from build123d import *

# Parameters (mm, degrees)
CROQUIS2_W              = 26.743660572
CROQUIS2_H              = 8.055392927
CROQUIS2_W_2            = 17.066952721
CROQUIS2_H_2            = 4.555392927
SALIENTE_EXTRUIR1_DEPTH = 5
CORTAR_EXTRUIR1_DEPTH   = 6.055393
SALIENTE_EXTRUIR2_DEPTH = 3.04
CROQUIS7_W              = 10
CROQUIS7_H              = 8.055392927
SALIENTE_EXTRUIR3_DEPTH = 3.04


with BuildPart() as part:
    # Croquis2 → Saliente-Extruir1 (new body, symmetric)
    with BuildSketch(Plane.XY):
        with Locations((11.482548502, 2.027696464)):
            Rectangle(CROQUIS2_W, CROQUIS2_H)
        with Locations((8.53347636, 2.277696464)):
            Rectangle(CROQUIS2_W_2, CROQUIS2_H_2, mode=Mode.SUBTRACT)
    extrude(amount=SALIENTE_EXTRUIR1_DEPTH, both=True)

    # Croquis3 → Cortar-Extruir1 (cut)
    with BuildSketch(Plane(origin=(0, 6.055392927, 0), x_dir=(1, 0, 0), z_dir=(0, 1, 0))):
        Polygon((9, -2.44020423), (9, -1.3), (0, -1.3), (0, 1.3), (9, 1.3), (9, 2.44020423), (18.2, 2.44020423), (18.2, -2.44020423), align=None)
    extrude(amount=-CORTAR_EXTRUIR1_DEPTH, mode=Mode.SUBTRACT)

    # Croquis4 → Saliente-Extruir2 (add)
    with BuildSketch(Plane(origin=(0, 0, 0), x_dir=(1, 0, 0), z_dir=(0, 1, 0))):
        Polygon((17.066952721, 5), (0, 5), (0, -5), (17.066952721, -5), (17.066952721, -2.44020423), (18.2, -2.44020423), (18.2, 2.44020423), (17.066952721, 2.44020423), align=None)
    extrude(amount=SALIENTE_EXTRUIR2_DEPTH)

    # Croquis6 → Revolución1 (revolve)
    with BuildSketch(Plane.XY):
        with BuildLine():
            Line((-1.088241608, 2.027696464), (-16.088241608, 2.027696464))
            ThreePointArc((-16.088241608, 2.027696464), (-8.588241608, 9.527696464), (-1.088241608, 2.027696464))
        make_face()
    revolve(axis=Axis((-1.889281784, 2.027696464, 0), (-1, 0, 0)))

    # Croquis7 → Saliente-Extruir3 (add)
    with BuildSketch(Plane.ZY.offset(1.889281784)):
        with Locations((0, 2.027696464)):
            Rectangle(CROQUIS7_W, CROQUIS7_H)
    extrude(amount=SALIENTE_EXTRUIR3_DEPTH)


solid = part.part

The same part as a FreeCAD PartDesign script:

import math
import FreeCAD as App
import Part
import Sketcher

doc = App.newDocument("Part")
body = doc.addObject("PartDesign::Body", "Body")

# Sketch on XY plane
sketch1 = doc.addObject("Sketcher::SketchObject", "Sketch")
body.addObject(sketch1)
sketch1.AttachmentSupport = (doc.XY_Plane, [""])
sketch1.MapMode = "FlatFace"
sketch1.addGeometry(Part.LineSegment(App.Vector(-1.9, 6.1, 0), App.Vector(-1.9, -2, 0)), False)
sketch1.addGeometry(Part.LineSegment(App.Vector(-1.9, -2, 0), App.Vector(24.9, -2, 0)), False)
sketch1.addGeometry(Part.LineSegment(App.Vector(24.9, -2, 0), App.Vector(24.9, 6.1, 0)), False)
sketch1.addGeometry(Part.LineSegment(App.Vector(24.9, 6.1, 0), App.Vector(-1.9, 6.1, 0)), False)
sketch1.addGeometry(Part.LineSegment(App.Vector(17.1, 0, 0), App.Vector(0, 0, 0)), False)
sketch1.addGeometry(Part.LineSegment(App.Vector(0, 0, 0), App.Vector(0, 4.6, 0)), False)
sketch1.addGeometry(Part.LineSegment(App.Vector(0, 4.6, 0), App.Vector(17.1, 4.6, 0)), False)
sketch1.addGeometry(Part.LineSegment(App.Vector(17.1, 4.6, 0), App.Vector(17.1, 0, 0)), False)
sketch1.addConstraint(Sketcher.Constraint("Coincident", 0, 2, 1, 1))
sketch1.addConstraint(Sketcher.Constraint("Coincident", 1, 2, 2, 1))
sketch1.addConstraint(Sketcher.Constraint("Coincident", 2, 2, 3, 1))
sketch1.addConstraint(Sketcher.Constraint("Coincident", 3, 2, 0, 1))
sketch1.addConstraint(Sketcher.Constraint("Coincident", 4, 2, 5, 1))
sketch1.addConstraint(Sketcher.Constraint("Coincident", 5, 2, 6, 1))
sketch1.addConstraint(Sketcher.Constraint("Coincident", 6, 2, 7, 1))
sketch1.addConstraint(Sketcher.Constraint("Coincident", 7, 2, 4, 1))
sketch1.addConstraint(Sketcher.Constraint("Vertical", 0))
sketch1.addConstraint(Sketcher.Constraint("Horizontal", 1))
sketch1.addConstraint(Sketcher.Constraint("Vertical", 2))
sketch1.addConstraint(Sketcher.Constraint("Horizontal", 3))
sketch1.addConstraint(Sketcher.Constraint("Horizontal", 4))
sketch1.addConstraint(Sketcher.Constraint("Vertical", 5))
sketch1.addConstraint(Sketcher.Constraint("Horizontal", 6))
sketch1.addConstraint(Sketcher.Constraint("Vertical", 7))
sketch1.addConstraint(Sketcher.Constraint("Coincident", 4, 2, -1, 1))
sketch1.addConstraint(Sketcher.Constraint("DistanceY", 0, 2, -1, 1, 2.0))
sketch1.addConstraint(Sketcher.Constraint("DistanceY", 5, 2, 3, 2, 1.5))
sketch1.addConstraint(Sketcher.Constraint("DistanceX", 1, 1, 1, 2, 26.743661))
sketch1.addConstraint(Sketcher.Constraint("DistanceX", 4, 2, 4, 1, 17.066953))
sketch1.addConstraint(Sketcher.Constraint("DistanceY", 0, 2, 0, 1, 8.055393))
sketch1.addConstraint(Sketcher.Constraint("DistanceX", 0, 2, -1, 1, 1.889282))
pad1 = doc.addObject("PartDesign::Pad", "Pad")
body.addObject(pad1)
pad1.Profile = sketch1
pad1.Length = 10
pad1.Midplane = True

# Sketch on XZ plane
sketch2 = doc.addObject("Sketcher::SketchObject", "Sketch001")
body.addObject(sketch2)
sketch2.AttachmentSupport = (doc.XZ_Plane, [""])
sketch2.MapMode = "FlatFace"
sketch2.AttachmentOffset = App.Placement(App.Vector(0, 0, -6.055393), App.Rotation())
sketch2.addGeometry(Part.LineSegment(App.Vector(9, 1.3, 0), App.Vector(9, 2.4, 0)), False)
sketch2.addGeometry(Part.LineSegment(App.Vector(9, 2.4, 0), App.Vector(18.2, 2.4, 0)), False)
sketch2.addGeometry(Part.LineSegment(App.Vector(18.2, 2.4, 0), App.Vector(18.2, -2.4, 0)), False)
sketch2.addGeometry(Part.LineSegment(App.Vector(18.2, -2.4, 0), App.Vector(9, -2.4, 0)), False)
sketch2.addGeometry(Part.LineSegment(App.Vector(9, -2.4, 0), App.Vector(9, -1.3, 0)), False)
sketch2.addGeometry(Part.LineSegment(App.Vector(9, -1.3, 0), App.Vector(0, -1.3, 0)), False)
sketch2.addGeometry(Part.LineSegment(App.Vector(0, -1.3, 0), App.Vector(0, 1.3, 0)), False)
sketch2.addGeometry(Part.LineSegment(App.Vector(0, 1.3, 0), App.Vector(9, 1.3, 0)), False)
sketch2.addConstraint(Sketcher.Constraint("Coincident", 0, 2, 1, 1))
sketch2.addConstraint(Sketcher.Constraint("Coincident", 1, 2, 2, 1))
sketch2.addConstraint(Sketcher.Constraint("Coincident", 2, 2, 3, 1))
sketch2.addConstraint(Sketcher.Constraint("Coincident", 3, 2, 4, 1))
sketch2.addConstraint(Sketcher.Constraint("Coincident", 4, 2, 5, 1))
sketch2.addConstraint(Sketcher.Constraint("Coincident", 5, 2, 6, 1))
sketch2.addConstraint(Sketcher.Constraint("Coincident", 6, 2, 7, 1))
sketch2.addConstraint(Sketcher.Constraint("Coincident", 7, 2, 0, 1))
sketch2.addConstraint(Sketcher.Constraint("Vertical", 0))
sketch2.addConstraint(Sketcher.Constraint("Horizontal", 1))
sketch2.addConstraint(Sketcher.Constraint("Vertical", 2))
sketch2.addConstraint(Sketcher.Constraint("Horizontal", 3))
sketch2.addConstraint(Sketcher.Constraint("Vertical", 4))
sketch2.addConstraint(Sketcher.Constraint("Horizontal", 5))
sketch2.addConstraint(Sketcher.Constraint("Vertical", 6))
sketch2.addConstraint(Sketcher.Constraint("Horizontal", 7))
sketch2.addConstraint(Sketcher.Constraint("Symmetric", 5, 2, 6, 2, -1, 1))
sketch2.addConstraint(Sketcher.Constraint("Symmetric", 0, 2, 3, 2, -1))
sketch2.addConstraint(Sketcher.Constraint("DistanceX", 5, 2, 5, 1, 9.0))
sketch2.addConstraint(Sketcher.Constraint("DistanceX", 1, 1, 1, 2, 9.2))
sketch2.addConstraint(Sketcher.Constraint("DistanceY", 6, 1, 6, 2, 2.6))
sketch2.addConstraint(Sketcher.Constraint("DistanceY", 2, 2, 2, 1, 4.880408))
pocket1 = doc.addObject("PartDesign::Pocket", "Pocket")
body.addObject(pocket1)
pocket1.Profile = sketch2
pocket1.Length = 6.055393
pocket1.Reversed = True

# Sketch on XZ plane
sketch3 = doc.addObject("Sketcher::SketchObject", "Sketch002")
body.addObject(sketch3)
sketch3.AttachmentSupport = (doc.XZ_Plane, [""])
sketch3.MapMode = "FlatFace"
sketch3.addGeometry(Part.LineSegment(App.Vector(17.1, -5, 0), App.Vector(0, -5, 0)), False)
sketch3.addGeometry(Part.LineSegment(App.Vector(0, -5, 0), App.Vector(0, 5, 0)), False)
sketch3.addGeometry(Part.LineSegment(App.Vector(0, 5, 0), App.Vector(17.1, 5, 0)), False)
sketch3.addGeometry(Part.LineSegment(App.Vector(17.1, 5, 0), App.Vector(17.1, 2.4, 0)), False)
sketch3.addGeometry(Part.LineSegment(App.Vector(17.1, 2.4, 0), App.Vector(18.2, 2.4, 0)), False)
sketch3.addGeometry(Part.LineSegment(App.Vector(18.2, 2.4, 0), App.Vector(18.2, -2.4, 0)), False)
sketch3.addGeometry(Part.LineSegment(App.Vector(18.2, -2.4, 0), App.Vector(17.1, -2.4, 0)), False)
sketch3.addGeometry(Part.LineSegment(App.Vector(17.1, -2.4, 0), App.Vector(17.1, -5, 0)), False)
sketch3.addConstraint(Sketcher.Constraint("Coincident", 0, 2, 1, 1))
sketch3.addConstraint(Sketcher.Constraint("Coincident", 1, 2, 2, 1))
sketch3.addConstraint(Sketcher.Constraint("Coincident", 2, 2, 3, 1))
sketch3.addConstraint(Sketcher.Constraint("Coincident", 3, 2, 4, 1))
sketch3.addConstraint(Sketcher.Constraint("Coincident", 4, 2, 5, 1))
sketch3.addConstraint(Sketcher.Constraint("Coincident", 5, 2, 6, 1))
sketch3.addConstraint(Sketcher.Constraint("Coincident", 6, 2, 7, 1))
sketch3.addConstraint(Sketcher.Constraint("Coincident", 7, 2, 0, 1))
sketch3.addConstraint(Sketcher.Constraint("Horizontal", 0))
sketch3.addConstraint(Sketcher.Constraint("Vertical", 1))
sketch3.addConstraint(Sketcher.Constraint("Horizontal", 2))
sketch3.addConstraint(Sketcher.Constraint("Vertical", 3))
sketch3.addConstraint(Sketcher.Constraint("Horizontal", 4))
sketch3.addConstraint(Sketcher.Constraint("Vertical", 5))
sketch3.addConstraint(Sketcher.Constraint("Horizontal", 6))
sketch3.addConstraint(Sketcher.Constraint("Vertical", 7))
sketch3.addConstraint(Sketcher.Constraint("Symmetric", 0, 2, 1, 2, -1, 1))
sketch3.addConstraint(Sketcher.Constraint("Symmetric", 3, 2, 6, 2, -1))
sketch3.addConstraint(Sketcher.Constraint("DistanceY", 1, 1, 1, 2, 10.0))
sketch3.addConstraint(Sketcher.Constraint("DistanceX", -1, 1, 4, 2, 18.2))
sketch3.addConstraint(Sketcher.Constraint("DistanceY", 5, 2, 5, 1, 4.880408))
sketch3.addConstraint(Sketcher.Constraint("DistanceX", 0, 2, 0, 1, 17.066953))
pad2 = doc.addObject("PartDesign::Pad", "Pad001")
body.addObject(pad2)
pad2.Profile = sketch3
pad2.Length = 3.04
pad2.Reversed = True

# Sketch on XY plane
sketch4 = doc.addObject("Sketcher::SketchObject", "Sketch003")
body.addObject(sketch4)
sketch4.AttachmentSupport = (doc.XY_Plane, [""])
sketch4.MapMode = "FlatFace"
sketch4.addGeometry(Part.LineSegment(App.Vector(-16, 2, 0), App.Vector(-1, 2, 0)), False)
sketch4.addGeometry(Part.ArcOfCircle(Part.Circle(App.Vector(-9, 2, 0), App.Vector(0, 0, 1), 8), math.radians(0), math.radians(180)), False)
sketch4.addGeometry(Part.LineSegment(App.Vector(-1, 2, 0), App.Vector(-16, 2, 0)), True)  # axis
sketch4.addConstraint(Sketcher.Constraint("Coincident", 0, 1, 1, 2))
sketch4.addConstraint(Sketcher.Constraint("Coincident", 1, 1, 0, 2))
sketch4.addConstraint(Sketcher.Constraint("Horizontal", 0))
sketch4.addConstraint(Sketcher.Constraint("Horizontal", 2))
sketch4.addConstraint(Sketcher.Constraint("Coincident", 2, 1, 1, 1))
sketch4.addConstraint(Sketcher.Constraint("Horizontal", 1, 3, 0, 1))
sketch4.addConstraint(Sketcher.Constraint("Equal", 0, 2))
sketch4.addConstraint(Sketcher.Constraint("Radius", 1, 7.5))
sketch4.addConstraint(Sketcher.Constraint("DistanceX", 1, 3, -1, 1, 8.588242))
sketch4.addConstraint(Sketcher.Constraint("DistanceY", -1, 1, 1, 3, 2.027696))
revolution = doc.addObject("PartDesign::Revolution", "Revolution")
body.addObject(revolution)
revolution.Profile = sketch4
revolution.ReferenceAxis = (sketch4, ["Axis0"])
revolution.Angle = 360

# Sketch on YZ plane
sketch5 = doc.addObject("Sketcher::SketchObject", "Sketch004")
body.addObject(sketch5)
sketch5.AttachmentSupport = (doc.YZ_Plane, [""])
sketch5.MapMode = "FlatFace"
sketch5.AttachmentOffset = App.Placement(App.Vector(0, 0, -1.889282), App.Rotation())
sketch5.addGeometry(Part.LineSegment(App.Vector(6, -5, 0), App.Vector(-2, -5, 0)), False)
sketch5.addGeometry(Part.LineSegment(App.Vector(-2, -5, 0), App.Vector(-2, 5, 0)), False)
sketch5.addGeometry(Part.LineSegment(App.Vector(-2, 5, 0), App.Vector(6, 5, 0)), False)
sketch5.addGeometry(Part.LineSegment(App.Vector(6, 5, 0), App.Vector(6, -5, 0)), False)
sketch5.addConstraint(Sketcher.Constraint("Coincident", 0, 2, 1, 1))
sketch5.addConstraint(Sketcher.Constraint("Coincident", 1, 2, 2, 1))
sketch5.addConstraint(Sketcher.Constraint("Coincident", 2, 2, 3, 1))
sketch5.addConstraint(Sketcher.Constraint("Coincident", 3, 2, 0, 1))
sketch5.addConstraint(Sketcher.Constraint("Horizontal", 0))
sketch5.addConstraint(Sketcher.Constraint("Vertical", 1))
sketch5.addConstraint(Sketcher.Constraint("Horizontal", 2))
sketch5.addConstraint(Sketcher.Constraint("Vertical", 3))
sketch5.addConstraint(Sketcher.Constraint("DistanceY", 1, 1, 1, 2, 10.0))
sketch5.addConstraint(Sketcher.Constraint("DistanceX", 0, 2, -1, 1, 2.0))
sketch5.addConstraint(Sketcher.Constraint("DistanceY", 0, 2, -1, 1, 5.0))
sketch5.addConstraint(Sketcher.Constraint("DistanceX", 0, 2, 0, 1, 8.055393))
pad3 = doc.addObject("PartDesign::Pad", "Pad002")
body.addObject(pad3)
pad3.Profile = sketch5
pad3.Length = 3.04
pad3.Reversed = True

doc.recompute()
